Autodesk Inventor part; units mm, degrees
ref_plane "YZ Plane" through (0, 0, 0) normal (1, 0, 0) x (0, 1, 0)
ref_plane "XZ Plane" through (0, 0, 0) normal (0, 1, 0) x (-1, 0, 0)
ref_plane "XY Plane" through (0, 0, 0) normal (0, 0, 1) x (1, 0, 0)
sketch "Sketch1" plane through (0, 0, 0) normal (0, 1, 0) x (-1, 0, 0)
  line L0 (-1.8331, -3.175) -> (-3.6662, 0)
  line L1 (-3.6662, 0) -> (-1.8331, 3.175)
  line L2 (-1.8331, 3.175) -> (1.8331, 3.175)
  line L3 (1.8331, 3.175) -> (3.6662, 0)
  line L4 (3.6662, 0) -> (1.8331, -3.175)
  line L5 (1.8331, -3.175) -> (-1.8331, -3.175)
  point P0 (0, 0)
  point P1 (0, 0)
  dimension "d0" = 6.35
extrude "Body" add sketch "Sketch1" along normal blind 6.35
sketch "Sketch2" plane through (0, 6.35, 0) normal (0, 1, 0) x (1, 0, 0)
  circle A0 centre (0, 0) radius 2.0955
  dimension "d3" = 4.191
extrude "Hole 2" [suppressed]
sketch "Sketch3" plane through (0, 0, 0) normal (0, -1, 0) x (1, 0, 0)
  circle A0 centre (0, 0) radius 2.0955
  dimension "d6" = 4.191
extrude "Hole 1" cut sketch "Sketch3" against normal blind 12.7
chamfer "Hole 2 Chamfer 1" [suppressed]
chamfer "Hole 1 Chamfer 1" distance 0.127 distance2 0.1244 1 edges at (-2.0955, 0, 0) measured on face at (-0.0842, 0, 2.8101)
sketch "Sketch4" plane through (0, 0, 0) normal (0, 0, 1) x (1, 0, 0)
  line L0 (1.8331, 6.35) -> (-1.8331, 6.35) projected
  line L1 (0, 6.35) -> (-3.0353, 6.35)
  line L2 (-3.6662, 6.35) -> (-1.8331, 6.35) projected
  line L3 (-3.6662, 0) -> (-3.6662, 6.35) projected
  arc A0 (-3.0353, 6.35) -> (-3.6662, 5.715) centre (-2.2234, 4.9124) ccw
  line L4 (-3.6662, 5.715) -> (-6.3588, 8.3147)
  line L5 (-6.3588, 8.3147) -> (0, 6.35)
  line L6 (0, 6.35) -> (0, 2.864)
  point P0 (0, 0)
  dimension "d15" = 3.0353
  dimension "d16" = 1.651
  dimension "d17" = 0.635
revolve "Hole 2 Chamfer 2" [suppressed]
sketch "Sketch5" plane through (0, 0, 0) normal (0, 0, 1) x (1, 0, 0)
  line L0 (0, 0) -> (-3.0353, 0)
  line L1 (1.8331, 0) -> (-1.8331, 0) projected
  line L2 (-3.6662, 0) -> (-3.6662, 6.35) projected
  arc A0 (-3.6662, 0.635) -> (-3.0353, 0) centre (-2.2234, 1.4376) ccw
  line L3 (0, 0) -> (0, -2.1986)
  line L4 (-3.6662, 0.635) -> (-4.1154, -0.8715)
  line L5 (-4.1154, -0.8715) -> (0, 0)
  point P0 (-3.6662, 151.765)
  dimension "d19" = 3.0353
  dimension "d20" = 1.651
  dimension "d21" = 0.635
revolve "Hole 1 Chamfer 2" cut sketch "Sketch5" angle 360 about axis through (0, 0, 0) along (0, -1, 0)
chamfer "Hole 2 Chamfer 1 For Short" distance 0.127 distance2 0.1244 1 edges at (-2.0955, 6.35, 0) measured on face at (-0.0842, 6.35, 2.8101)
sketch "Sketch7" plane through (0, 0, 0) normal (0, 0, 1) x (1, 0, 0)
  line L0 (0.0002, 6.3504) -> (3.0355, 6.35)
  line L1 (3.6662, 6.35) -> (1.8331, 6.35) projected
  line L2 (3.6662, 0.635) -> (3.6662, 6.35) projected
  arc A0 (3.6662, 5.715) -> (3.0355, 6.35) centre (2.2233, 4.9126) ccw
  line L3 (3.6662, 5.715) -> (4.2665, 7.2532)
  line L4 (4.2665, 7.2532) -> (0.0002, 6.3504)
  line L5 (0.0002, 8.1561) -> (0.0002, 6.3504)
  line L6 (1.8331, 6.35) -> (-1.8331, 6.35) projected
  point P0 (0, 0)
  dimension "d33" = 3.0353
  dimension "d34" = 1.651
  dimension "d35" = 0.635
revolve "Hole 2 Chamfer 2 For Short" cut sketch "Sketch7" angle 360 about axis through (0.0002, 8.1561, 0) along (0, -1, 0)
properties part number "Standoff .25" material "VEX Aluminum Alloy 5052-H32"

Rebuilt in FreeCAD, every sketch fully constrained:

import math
import FreeCAD as App
import Part
import Sketcher

V = App.Vector
Q = App.Units.Quantity


def edges_at(feature, points):
    """Names of the edges that pass closest to the given points."""
    edges = feature.Shape.Edges
    near = lambda p: min(range(len(edges)), key=lambda i: edges[i].distToShape(Part.Vertex(*p))[0])
    return sorted({f"Edge{near(p) + 1}" for p in points})

doc = App.newDocument("Part")
body = doc.addObject("PartDesign::Body", "Body")

sketch1 = body.newObject("Sketcher::SketchObject", "Sketch")
sketch1.AttachmentSupport = (doc.getObject("XZ_Plane"), [""])
sketch1.MapMode = "FlatFace"
sketch1.addGeometry([
    Part.LineSegment(V(3.7, 0, 0), V(1.8, -3.2, 0)),
    Part.LineSegment(V(1.8, -3.2, 0), V(-1.8, -3.2, 0)),
    Part.LineSegment(V(-1.8, -3.2, 0), V(-3.7, 0, 0)),
    Part.LineSegment(V(-3.7, 0, 0), V(-1.8, 3.2, 0)),
    Part.LineSegment(V(-1.8, 3.2, 0), V(1.8, 3.2, 0)),
    Part.LineSegment(V(1.8, 3.2, 0), V(3.7, 0, 0)),
], False)
sketch1.addConstraint([
    Sketcher.Constraint("Coincident", 0, 2, 1, 1),
    Sketcher.Constraint("Coincident", 1, 2, 2, 1),
    Sketcher.Constraint("Coincident", 2, 2, 3, 1),
    Sketcher.Constraint("Coincident", 3, 2, 4, 1),
    Sketcher.Constraint("Coincident", 4, 2, 5, 1),
    Sketcher.Constraint("Coincident", 5, 2, 0, 1),
    Sketcher.Constraint("Horizontal", 1),
    Sketcher.Constraint("Horizontal", 4),
    Sketcher.Constraint("Symmetric", 0, 2, 3, 2, -1, 1),
    Sketcher.Constraint("Symmetric", 2, 2, 5, 2, -1, 1),
    Sketcher.Constraint("PointOnObject", 2, 2, -1),
    Sketcher.Constraint("Parallel", 2, 5),
    Sketcher.Constraint("Vertical", 1, 2, 3, 2),
    Sketcher.Constraint("DistanceY", 1, 2, 3, 2, Q("0.25 in")),
    Sketcher.Constraint("Angle", 0, Q("-120.0002 deg")),
    Sketcher.Constraint("DistanceX", 1, 2, 1, 1, Q("3.6662 mm")),
])
pad1 = body.newObject("PartDesign::Pad", "Pad")
pad1.Profile = sketch1
pad1.Length = Q("0.25 in")
pad1.Reversed = True

sketch2 = body.newObject("Sketcher::SketchObject", "Sketch001")
sketch2.AttachmentSupport = (doc.getObject("XZ_Plane"), [""])
sketch2.MapMode = "FlatFace"
sketch2.addGeometry(Part.Circle(V(0, 0, 0), V(0, 0, 1), 2.1), False)
sketch2.addConstraint([
    Sketcher.Constraint("Coincident", 0, 3, -1, 1),
    Sketcher.Constraint("Diameter", 0, Q("0.165 in")),
])
pocket1 = body.newObject("PartDesign::Pocket", "Pocket")
pocket1.Profile = sketch2
pocket1.Length = Q("0.5 in")
doc.recompute()

chamfer = body.newObject("PartDesign::Chamfer", "Chamfer")
chamfer.Base = (pocket1, edges_at(pocket1, [(-2.095, 0, 0)]))
chamfer.ChamferType = "Two distances"
chamfer.Size = Q("0.005 in")
chamfer.Size2 = Q("0.0048976 in")

sketch3 = body.newObject("Sketcher::SketchObject", "Sketch002")
sketch3.AttachmentSupport = (doc.getObject("XY_Plane"), [""])
sketch3.MapMode = "FlatFace"
sketch3.addGeometry([
    Part.LineSegment(V(-4.1, -0.9, 0), V(0, 0, 0)),
    Part.LineSegment(V(0, 0, 0), V(-3, 0, 0)),
    Part.ArcOfCircle(Part.Circle(V(-2.2, 1.4, 0), V(0, 0, 1), 1.7), math.radians(-151), math.radians(-119)),
    Part.LineSegment(V(-3.7, 0.6, 0), V(-4.1, -0.9, 0)),
], False)
sketch3.addConstraint([
    Sketcher.Constraint("Coincident", 0, 2, 1, 1),
    Sketcher.Constraint("Coincident", 1, 2, 2, 2),
    Sketcher.Constraint("Coincident", 2, 1, 3, 1),
    Sketcher.Constraint("Coincident", 3, 2, 0, 1),
    Sketcher.Constraint("Horizontal", 1),
    Sketcher.Constraint("Coincident", 0, 2, -1, 1),
    Sketcher.Constraint("Radius", 2, Q("0.065 in")),
    Sketcher.Constraint("DistanceX", 1, 2, 1, 1, Q("0.1195 in")),
    Sketcher.Constraint("DistanceY", -1, 1, 2, 1, Q("0.025 in")),
    Sketcher.Constraint("Distance", 3, Q("0.0619 in")),
    Sketcher.Constraint("DistanceY", -1, 1, 2, 3, Q("0.0566 in")),
    Sketcher.Constraint("DistanceY", 3, 2, -1, 1, Q("0.0343 in")),
])
groove = body.newObject("PartDesign::Groove", "Groove")
groove.Profile = sketch3
groove.ReferenceAxis = (sketch3, ["V_Axis"])
groove.Angle = 360
doc.recompute()

chamfer2 = body.newObject("PartDesign::Chamfer", "Chamfer001")
chamfer2.Base = (groove, edges_at(groove, [(-2.095, 6.35, 0)]))
chamfer2.ChamferType = "Two distances"
chamfer2.Size = Q("0.005 in")
chamfer2.Size2 = Q("0.0048976 in")

sketch4 = body.newObject("Sketcher::SketchObject", "Sketch003")
sketch4.AttachmentSupport = (doc.getObject("XY_Plane"), [""])
sketch4.MapMode = "FlatFace"
sketch4.addGeometry([
    Part.LineSegment(V(4.3, 7.3, 0), V(0, 6.4, 0)),
    Part.LineSegment(V(0, 6.4, 0), V(3, 6.3, 0)),
    Part.ArcOfCircle(Part.Circle(V(2.2, 4.9, 0), V(0, 0, 1), 1.7), math.radians(29), math.radians(61)),
    Part.LineSegment(V(3.7, 5.7, 0), V(4.3, 7.3, 0)),
], False)
sketch4.addGeometry(Part.LineSegment(V(0, 7.3, 0), V(0, 4.9, 0)), True)
sketch4.addConstraint([
    Sketcher.Constraint("Coincident", 0, 2, 1, 1),
    Sketcher.Constraint("Coincident", 1, 2, 2, 2),
    Sketcher.Constraint("Coincident", 2, 1, 3, 1),
    Sketcher.Constraint("Coincident", 3, 2, 0, 1),
    Sketcher.Constraint("Vertical", 4),
    Sketcher.Constraint("Horizontal", 3, 2, 4, 1),
    Sketcher.Constraint("Horizontal", 2, 3, 4, 2),
    Sketcher.Constraint("Vertical", 0, 2, 4, 1),
    Sketcher.Constraint("Radius", 2, Q("0.065 in")),
    Sketcher.Constraint("Distance", 3, Q("0.065 in")),
    Sketcher.Constraint("DistanceX", -1, 1, 0, 2, Q("0 in")),
    Sketcher.Constraint("DistanceY", 2, 1, 1, 2, Q("0.025 in")),
    Sketcher.Constraint("Distance", 1, Q("0.1195 in")),
    Sketcher.Constraint("DistanceY", -1, 1, 1, 2, Q("0.25 in")),
    Sketcher.Constraint("DistanceY", 2, 1, 0, 2, Q("0.6354 mm")),
    Sketcher.Constraint("DistanceY", 4, 2, 4, 1, Q("2.3406 mm")),
    Sketcher.Constraint("DistanceY", -1, 1, 2, 3, Q("0.1934 in")),
])
groove2 = body.newObject("PartDesign::Groove", "Groove001")
groove2.Profile = sketch4
groove2.ReferenceAxis = (sketch4, ["Axis0"])
groove2.Angle = 360

doc.recompute()
